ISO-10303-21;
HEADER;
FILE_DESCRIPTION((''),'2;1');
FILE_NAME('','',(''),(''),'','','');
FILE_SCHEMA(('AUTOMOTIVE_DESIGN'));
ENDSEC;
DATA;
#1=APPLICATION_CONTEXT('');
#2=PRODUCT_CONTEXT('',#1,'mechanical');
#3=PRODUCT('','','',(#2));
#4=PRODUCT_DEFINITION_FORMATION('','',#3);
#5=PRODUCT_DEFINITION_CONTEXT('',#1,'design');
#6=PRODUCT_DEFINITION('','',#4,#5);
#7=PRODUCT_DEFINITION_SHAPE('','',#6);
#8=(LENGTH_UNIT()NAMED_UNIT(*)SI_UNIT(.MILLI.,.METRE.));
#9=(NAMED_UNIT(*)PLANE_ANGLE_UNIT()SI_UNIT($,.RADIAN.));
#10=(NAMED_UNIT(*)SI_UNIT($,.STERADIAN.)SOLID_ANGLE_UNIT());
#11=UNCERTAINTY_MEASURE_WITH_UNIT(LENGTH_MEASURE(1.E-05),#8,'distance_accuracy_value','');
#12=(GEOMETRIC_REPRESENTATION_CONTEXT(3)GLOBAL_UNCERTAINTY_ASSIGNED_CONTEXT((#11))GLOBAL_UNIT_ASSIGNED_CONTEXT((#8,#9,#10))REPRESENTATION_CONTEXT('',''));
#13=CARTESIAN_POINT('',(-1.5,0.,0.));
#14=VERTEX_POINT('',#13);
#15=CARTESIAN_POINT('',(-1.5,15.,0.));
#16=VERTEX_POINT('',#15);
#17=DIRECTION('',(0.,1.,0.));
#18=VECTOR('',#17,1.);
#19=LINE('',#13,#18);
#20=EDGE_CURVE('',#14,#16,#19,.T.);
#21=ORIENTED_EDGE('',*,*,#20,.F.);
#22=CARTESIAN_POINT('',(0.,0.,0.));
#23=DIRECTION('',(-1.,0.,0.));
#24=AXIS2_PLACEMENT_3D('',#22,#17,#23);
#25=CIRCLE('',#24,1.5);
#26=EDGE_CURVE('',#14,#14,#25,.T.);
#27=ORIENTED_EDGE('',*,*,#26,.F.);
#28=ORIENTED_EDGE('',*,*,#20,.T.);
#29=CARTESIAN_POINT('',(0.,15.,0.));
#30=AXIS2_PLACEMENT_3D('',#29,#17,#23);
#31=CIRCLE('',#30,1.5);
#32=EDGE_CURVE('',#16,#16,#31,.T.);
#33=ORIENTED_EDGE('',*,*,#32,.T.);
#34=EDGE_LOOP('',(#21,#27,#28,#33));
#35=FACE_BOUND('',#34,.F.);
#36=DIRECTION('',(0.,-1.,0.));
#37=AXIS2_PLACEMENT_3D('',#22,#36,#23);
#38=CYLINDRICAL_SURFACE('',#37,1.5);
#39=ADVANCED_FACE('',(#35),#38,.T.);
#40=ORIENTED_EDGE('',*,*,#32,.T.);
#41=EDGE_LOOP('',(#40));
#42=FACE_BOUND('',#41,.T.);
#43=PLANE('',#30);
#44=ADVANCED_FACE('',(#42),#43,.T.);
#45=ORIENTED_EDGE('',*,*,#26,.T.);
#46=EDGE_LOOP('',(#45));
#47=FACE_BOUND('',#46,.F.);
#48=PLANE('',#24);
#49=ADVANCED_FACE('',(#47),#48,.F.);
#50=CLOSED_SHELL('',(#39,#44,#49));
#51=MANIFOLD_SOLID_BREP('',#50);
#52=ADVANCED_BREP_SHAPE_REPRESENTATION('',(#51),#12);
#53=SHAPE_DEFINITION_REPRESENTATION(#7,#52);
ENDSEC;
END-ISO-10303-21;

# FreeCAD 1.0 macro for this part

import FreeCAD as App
import Part
import Sketcher
from FreeCAD import Vector

doc = App.newDocument("Part")
body = doc.addObject("PartDesign::Body", "Body")

# Sketch on XZ plane
sketch1 = body.newObject("Sketcher::SketchObject", "Sketch")
sketch1.AttachmentSupport = (doc.getObject("XZ_Plane"), [""])
sketch1.MapMode = "FlatFace"
sketch1.addGeometry(Part.Circle(Vector(0, 0, 0), Vector(0, 0, 1), 1.5), False)
sketch1.addConstraint([
    Sketcher.Constraint("Coincident", 0, 3, -1, 1),
    Sketcher.Constraint("Diameter", 0, 3.0),
])
pad1 = body.newObject("PartDesign::Pad", "Pad")
pad1.Profile = sketch1
pad1.Length = 15
pad1.Reversed = True

doc.recompute()
